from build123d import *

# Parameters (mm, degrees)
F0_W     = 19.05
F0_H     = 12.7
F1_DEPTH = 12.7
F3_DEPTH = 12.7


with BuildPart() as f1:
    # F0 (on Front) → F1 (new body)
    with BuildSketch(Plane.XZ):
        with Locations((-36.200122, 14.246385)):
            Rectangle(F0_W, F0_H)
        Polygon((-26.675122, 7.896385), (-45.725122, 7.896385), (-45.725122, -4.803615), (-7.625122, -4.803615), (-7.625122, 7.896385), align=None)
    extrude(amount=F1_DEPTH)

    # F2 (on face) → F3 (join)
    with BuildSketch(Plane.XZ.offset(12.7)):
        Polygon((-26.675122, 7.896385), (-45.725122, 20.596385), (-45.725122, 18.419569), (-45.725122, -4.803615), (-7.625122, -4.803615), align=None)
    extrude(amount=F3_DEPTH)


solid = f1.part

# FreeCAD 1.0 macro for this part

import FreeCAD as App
import Part
import Sketcher
from FreeCAD import Vector
Q = App.Units.Quantity


def add_polygon(sketch, points):
    """Adds a closed chain of lines whose ends are joined by coincident constraints."""
    first, n = sketch.GeometryCount, len(points)
    for a, b in zip(points, points[1:] + points[:1]):
        sketch.addGeometry(Part.LineSegment(App.Vector(*a, 0), App.Vector(*b, 0)), False)
    for i in range(n):
        sketch.addConstraint(Sketcher.Constraint("Coincident", first + i, 2, first + (i + 1) % n, 1))

doc = App.newDocument("Part")
params = doc.addObject("Spreadsheet::Sheet", "Params")
for row, (alias, value) in enumerate([
    ("sketch1_height", "1 in"),
    ("sketch1_width", "1.5 in"),
    ("pad1_length", "0.5 in"),
    ("sketch2_height", "1 in"),
    ("sketch2_width", "1.5 in"),
    ("pad2_length", "0.5 in"),
], start=1):
    params.set(f"A{row}", alias)
    params.set(f"B{row}", "=" + value)
    params.setAlias(f"B{row}", alias)

body = doc.addObject("PartDesign::Body", "Body")

# Sketch on XZ plane
sketch1 = body.newObject("Sketcher::SketchObject", "Sketch")
sketch1.AttachmentSupport = (doc.getObject("XZ_Plane"), [""])
sketch1.MapMode = "FlatFace"
add_polygon(sketch1, [(-46, 21), (-46, -5), (-8, -5), (-8, 8), (-27, 8), (-27, 21)])  # lines 0-5
sketch1.addConstraint(Sketcher.Constraint("Vertical", 0))
sketch1.addConstraint(Sketcher.Constraint("Horizontal", 1))
sketch1.addConstraint(Sketcher.Constraint("Vertical", 2))
sketch1.addConstraint(Sketcher.Constraint("Horizontal", 3))
sketch1.addConstraint(Sketcher.Constraint("Vertical", 4))
sketch1.addConstraint(Sketcher.Constraint("Horizontal", 5))
sketch1.addConstraint(Sketcher.Constraint("Equal", 3, 5))
sketch1.addConstraint(Sketcher.Constraint("Equal", 2, 4))
sketch1.addConstraint(Sketcher.Constraint("DistanceY", 0, 2, 0, 1, Q("1 in")))
sketch1.addConstraint(Sketcher.Constraint("DistanceX", 1, 1, 1, 2, Q("1.5 in")))
sketch1.addConstraint(Sketcher.Constraint("DistanceX", 0, 2, -1, 1, Q("45.725122 mm")))
sketch1.addConstraint(Sketcher.Constraint("DistanceY", 0, 2, -1, 1, Q("4.803615 mm")))
sketch1.setExpression("Constraints[14]", "Params.sketch1_height")
sketch1.setExpression("Constraints[15]", "Params.sketch1_width")
pad1 = body.newObject("PartDesign::Pad", "Pad")
pad1.Profile = sketch1
pad1.setExpression("Length", "Params.pad1_length")

# Sketch on XZ plane
sketch2 = body.newObject("Sketcher::SketchObject", "Sketch001")
sketch2.AttachmentSupport = (doc.getObject("XZ_Plane"), [""])
sketch2.MapMode = "FlatFace"
sketch2.AttachmentOffset = App.Placement(Vector(0, 0, 0.5 * 25.4), App.Rotation())
add_polygon(sketch2, [(-46, 21), (-46, -5), (-8, -5)])  # lines 0-2
sketch2.addConstraint(Sketcher.Constraint("Vertical", 0))
sketch2.addConstraint(Sketcher.Constraint("Horizontal", 1))
sketch2.addConstraint(Sketcher.Constraint("DistanceY", 0, 2, 0, 1, Q("1 in")))
sketch2.addConstraint(Sketcher.Constraint("DistanceX", 1, 1, 1, 2, Q("1.5 in")))
sketch2.addConstraint(Sketcher.Constraint("DistanceX", 0, 2, -1, 1, Q("45.725122 mm")))
sketch2.addConstraint(Sketcher.Constraint("DistanceY", 0, 2, -1, 1, Q("4.803615 mm")))
sketch2.setExpression("Constraints[5]", "Params.sketch2_height")
sketch2.setExpression("Constraints[6]", "Params.sketch2_width")
pad2 = body.newObject("PartDesign::Pad", "Pad001")
pad2.Profile = sketch2
pad2.setExpression("Length", "Params.pad2_length")

doc.recompute()
